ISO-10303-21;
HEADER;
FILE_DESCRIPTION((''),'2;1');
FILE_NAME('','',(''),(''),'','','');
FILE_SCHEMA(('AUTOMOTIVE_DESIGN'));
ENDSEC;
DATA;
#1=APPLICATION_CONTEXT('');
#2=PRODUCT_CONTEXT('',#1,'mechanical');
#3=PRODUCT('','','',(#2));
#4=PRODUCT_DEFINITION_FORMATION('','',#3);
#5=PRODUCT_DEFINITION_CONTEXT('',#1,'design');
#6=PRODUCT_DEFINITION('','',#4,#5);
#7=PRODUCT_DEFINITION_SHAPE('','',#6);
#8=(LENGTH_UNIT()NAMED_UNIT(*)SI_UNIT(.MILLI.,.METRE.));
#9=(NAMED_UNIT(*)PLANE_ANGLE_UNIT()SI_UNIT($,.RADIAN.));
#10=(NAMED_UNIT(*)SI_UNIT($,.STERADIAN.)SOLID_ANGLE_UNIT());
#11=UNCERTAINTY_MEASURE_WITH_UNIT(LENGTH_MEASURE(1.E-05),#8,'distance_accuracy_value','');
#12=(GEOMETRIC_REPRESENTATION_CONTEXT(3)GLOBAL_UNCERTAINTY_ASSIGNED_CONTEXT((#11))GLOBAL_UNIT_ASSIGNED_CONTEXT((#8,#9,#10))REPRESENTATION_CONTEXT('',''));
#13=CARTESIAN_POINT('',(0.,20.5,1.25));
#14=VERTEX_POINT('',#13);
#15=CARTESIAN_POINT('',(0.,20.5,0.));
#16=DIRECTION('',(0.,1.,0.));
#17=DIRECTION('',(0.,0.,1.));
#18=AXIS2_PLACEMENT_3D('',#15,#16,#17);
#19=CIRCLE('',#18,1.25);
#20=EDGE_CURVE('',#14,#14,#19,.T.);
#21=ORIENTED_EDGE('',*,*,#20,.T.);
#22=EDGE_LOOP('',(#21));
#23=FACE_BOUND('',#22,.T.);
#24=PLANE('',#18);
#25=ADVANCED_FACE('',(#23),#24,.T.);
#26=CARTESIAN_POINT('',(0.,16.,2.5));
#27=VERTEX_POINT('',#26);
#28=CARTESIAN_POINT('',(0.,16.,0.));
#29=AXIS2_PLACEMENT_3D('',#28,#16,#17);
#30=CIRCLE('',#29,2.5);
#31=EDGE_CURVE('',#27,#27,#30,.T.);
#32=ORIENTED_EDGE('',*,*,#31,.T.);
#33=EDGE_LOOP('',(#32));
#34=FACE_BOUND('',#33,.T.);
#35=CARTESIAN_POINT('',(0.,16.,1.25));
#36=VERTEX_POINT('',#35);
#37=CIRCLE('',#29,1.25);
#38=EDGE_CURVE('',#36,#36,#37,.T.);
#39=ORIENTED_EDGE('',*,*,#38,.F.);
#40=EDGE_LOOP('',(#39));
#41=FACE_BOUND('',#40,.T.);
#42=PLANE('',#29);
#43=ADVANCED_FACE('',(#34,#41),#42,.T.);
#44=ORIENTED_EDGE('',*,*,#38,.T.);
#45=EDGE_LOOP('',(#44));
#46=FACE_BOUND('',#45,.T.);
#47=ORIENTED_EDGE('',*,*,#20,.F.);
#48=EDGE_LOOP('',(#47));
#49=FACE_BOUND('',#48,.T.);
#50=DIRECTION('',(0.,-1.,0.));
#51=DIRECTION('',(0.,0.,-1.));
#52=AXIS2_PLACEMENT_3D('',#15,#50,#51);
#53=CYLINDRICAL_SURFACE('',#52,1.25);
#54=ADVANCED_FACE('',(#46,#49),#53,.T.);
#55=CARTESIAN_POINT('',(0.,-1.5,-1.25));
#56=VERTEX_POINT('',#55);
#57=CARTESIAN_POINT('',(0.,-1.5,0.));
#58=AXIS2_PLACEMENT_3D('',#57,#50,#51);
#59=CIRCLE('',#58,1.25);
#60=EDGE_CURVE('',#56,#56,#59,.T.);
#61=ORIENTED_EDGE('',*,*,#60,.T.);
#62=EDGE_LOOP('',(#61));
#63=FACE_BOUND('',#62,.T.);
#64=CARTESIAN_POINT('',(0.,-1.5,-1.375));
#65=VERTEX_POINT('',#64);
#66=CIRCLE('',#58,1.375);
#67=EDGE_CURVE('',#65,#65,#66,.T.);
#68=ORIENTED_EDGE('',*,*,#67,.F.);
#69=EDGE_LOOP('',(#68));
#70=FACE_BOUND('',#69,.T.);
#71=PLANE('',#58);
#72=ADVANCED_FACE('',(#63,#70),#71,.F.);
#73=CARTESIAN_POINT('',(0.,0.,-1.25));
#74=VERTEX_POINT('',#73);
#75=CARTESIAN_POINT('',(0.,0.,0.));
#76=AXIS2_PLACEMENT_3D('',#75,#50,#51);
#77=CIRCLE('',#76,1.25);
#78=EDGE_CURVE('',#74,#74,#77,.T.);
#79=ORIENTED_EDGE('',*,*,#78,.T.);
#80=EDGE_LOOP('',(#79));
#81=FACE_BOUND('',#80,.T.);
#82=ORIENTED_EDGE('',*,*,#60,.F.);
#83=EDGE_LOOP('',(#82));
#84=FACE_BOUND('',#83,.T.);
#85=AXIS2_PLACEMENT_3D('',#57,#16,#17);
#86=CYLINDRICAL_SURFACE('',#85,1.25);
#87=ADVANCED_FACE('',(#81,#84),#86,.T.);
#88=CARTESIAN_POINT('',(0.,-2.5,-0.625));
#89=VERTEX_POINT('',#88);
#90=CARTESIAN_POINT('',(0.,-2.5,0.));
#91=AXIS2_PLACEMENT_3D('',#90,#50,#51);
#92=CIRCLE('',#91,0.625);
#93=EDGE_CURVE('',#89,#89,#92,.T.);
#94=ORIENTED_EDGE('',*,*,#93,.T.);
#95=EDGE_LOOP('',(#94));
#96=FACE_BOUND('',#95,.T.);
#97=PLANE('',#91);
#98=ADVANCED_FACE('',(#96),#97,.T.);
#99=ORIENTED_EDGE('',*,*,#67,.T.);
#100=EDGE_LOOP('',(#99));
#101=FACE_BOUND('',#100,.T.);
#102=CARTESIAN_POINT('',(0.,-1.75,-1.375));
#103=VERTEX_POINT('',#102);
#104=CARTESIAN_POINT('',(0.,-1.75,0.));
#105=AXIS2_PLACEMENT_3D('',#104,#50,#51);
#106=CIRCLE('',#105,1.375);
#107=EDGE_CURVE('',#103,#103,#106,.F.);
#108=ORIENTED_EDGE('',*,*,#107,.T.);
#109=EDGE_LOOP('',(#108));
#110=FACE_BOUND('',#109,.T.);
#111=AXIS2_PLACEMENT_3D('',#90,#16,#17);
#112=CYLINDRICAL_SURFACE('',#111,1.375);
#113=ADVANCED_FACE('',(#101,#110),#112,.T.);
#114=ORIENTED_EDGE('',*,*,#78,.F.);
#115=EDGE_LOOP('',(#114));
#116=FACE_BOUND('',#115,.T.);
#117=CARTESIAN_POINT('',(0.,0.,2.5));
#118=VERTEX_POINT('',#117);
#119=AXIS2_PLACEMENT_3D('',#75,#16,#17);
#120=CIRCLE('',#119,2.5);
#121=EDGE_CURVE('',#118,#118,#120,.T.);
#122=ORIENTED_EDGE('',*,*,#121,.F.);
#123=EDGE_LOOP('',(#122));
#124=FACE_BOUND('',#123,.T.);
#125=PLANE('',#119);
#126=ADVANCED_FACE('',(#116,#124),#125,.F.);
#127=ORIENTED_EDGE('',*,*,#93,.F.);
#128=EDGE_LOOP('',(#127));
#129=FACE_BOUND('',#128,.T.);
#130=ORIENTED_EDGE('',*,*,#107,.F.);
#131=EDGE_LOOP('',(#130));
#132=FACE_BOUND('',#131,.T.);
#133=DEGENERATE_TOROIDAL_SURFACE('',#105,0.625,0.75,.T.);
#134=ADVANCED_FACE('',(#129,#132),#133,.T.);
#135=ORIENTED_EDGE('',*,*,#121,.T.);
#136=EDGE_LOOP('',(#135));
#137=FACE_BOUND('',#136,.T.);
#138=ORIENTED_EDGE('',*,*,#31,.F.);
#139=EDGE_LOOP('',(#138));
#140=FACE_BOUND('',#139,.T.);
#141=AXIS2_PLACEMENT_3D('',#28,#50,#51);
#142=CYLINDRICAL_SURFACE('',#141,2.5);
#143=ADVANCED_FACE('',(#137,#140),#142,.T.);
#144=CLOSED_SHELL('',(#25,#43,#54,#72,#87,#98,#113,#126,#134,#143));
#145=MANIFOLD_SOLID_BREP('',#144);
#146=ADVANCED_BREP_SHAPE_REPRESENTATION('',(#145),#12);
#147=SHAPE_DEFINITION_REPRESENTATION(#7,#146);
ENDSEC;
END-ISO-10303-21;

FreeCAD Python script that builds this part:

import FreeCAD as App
import Part
import Sketcher
from FreeCAD import Vector
Q = App.Units.Quantity


def edges_at(feature, points):
    """Names of the edges that pass closest to the given points."""
    edges = feature.Shape.Edges
    near = lambda p: min(range(len(edges)), key=lambda i: edges[i].distToShape(Part.Vertex(*p))[0])
    return sorted({f"Edge{near(p) + 1}" for p in points})

doc = App.newDocument("Part")
params = doc.addObject("Spreadsheet::Sheet", "Params")
for row, (alias, value) in enumerate([
    ("sketch1_diameter", "5 mm"),
    ("pad1_length", "16 mm"),
    ("sketch2_diameter", "2.5 mm"),
    ("pad2_length", "4.5 mm"),
    ("sketch3_diameter", "2.5 mm"),
    ("pad3_length", "1.5 mm"),
    ("sketch4_diameter", "2.75 mm"),
    ("pad4_length", "1 mm"),
    ("fillet_radius", "0.75 mm"),
], start=1):
    params.set(f"A{row}", alias)
    params.set(f"B{row}", "=" + value)
    params.setAlias(f"B{row}", alias)

body = doc.addObject("PartDesign::Body", "Body")

sketch1 = body.newObject("Sketcher::SketchObject", "Sketch")
sketch1.AttachmentSupport = (doc.getObject("XZ_Plane"), [""])
sketch1.MapMode = "FlatFace"
sketch1.addGeometry(Part.Circle(Vector(0, 0, 0), Vector(0, 0, 1), 2.5), False)
sketch1.addConstraint([
    Sketcher.Constraint("Coincident", 0, 3, -1, 1),
    Sketcher.Constraint("Diameter", 0, Q("5 mm")),
])
sketch1.setExpression("Constraints[1]", "Params.sketch1_diameter")
pad1 = body.newObject("PartDesign::Pad", "Pad")
pad1.Profile = sketch1
pad1.setExpression("Length", "Params.pad1_length")
pad1.Reversed = True

sketch2 = body.newObject("Sketcher::SketchObject", "Sketch001")
sketch2.AttachmentSupport = (doc.getObject("XZ_Plane"), [""])
sketch2.MapMode = "FlatFace"
sketch2.AttachmentOffset = App.Placement(Vector(0, 0, -16), App.Rotation())
sketch2.addGeometry(Part.Circle(Vector(0, 0, 0), Vector(0, 0, 1), 1.2), False)
sketch2.addConstraint([
    Sketcher.Constraint("Coincident", 0, 3, -1, 1),
    Sketcher.Constraint("Diameter", 0, Q("2.5 mm")),
])
sketch2.setExpression("Constraints[1]", "Params.sketch2_diameter")
pad2 = body.newObject("PartDesign::Pad", "Pad001")
pad2.Profile = sketch2
pad2.setExpression("Length", "Params.pad2_length")
pad2.Reversed = True

sketch3 = body.newObject("Sketcher::SketchObject", "Sketch002")
sketch3.AttachmentSupport = (doc.getObject("XZ_Plane"), [""])
sketch3.MapMode = "FlatFace"
sketch3.AttachmentOffset = App.Placement(Vector(0, 0, 1.5), App.Rotation())
sketch3.addGeometry(Part.Circle(Vector(0, 0, 0), Vector(0, 0, 1), 1.2), False)
sketch3.addConstraint([
    Sketcher.Constraint("Coincident", 0, 3, -1, 1),
    Sketcher.Constraint("Diameter", 0, Q("2.5 mm")),
])
sketch3.setExpression("Constraints[1]", "Params.sketch3_diameter")
pad3 = body.newObject("PartDesign::Pad", "Pad002")
pad3.Profile = sketch3
pad3.setExpression("Length", "Params.pad3_length")
pad3.Reversed = True

sketch4 = body.newObject("Sketcher::SketchObject", "Sketch003")
sketch4.AttachmentSupport = (doc.getObject("XZ_Plane"), [""])
sketch4.MapMode = "FlatFace"
sketch4.AttachmentOffset = App.Placement(Vector(0, 0, 1.5), App.Rotation())
sketch4.addGeometry(Part.Circle(Vector(0, 0, 0), Vector(0, 0, 1), 1.4), False)
sketch4.addConstraint([
    Sketcher.Constraint("Coincident", 0, 3, -1, 1),
    Sketcher.Constraint("Diameter", 0, Q("2.75 mm")),
])
sketch4.setExpression("Constraints[1]", "Params.sketch4_diameter")
pad4 = body.newObject("PartDesign::Pad", "Pad003")
pad4.Profile = sketch4
pad4.setExpression("Length", "Params.pad4_length")
doc.recompute()

fillet = body.newObject("PartDesign::Fillet", "Fillet")
fillet.Base = (pad4, edges_at(pad4, [(0, -2.5, 1.375)]))
fillet.setExpression("Radius", "Params.fillet_radius")

doc.recompute()
